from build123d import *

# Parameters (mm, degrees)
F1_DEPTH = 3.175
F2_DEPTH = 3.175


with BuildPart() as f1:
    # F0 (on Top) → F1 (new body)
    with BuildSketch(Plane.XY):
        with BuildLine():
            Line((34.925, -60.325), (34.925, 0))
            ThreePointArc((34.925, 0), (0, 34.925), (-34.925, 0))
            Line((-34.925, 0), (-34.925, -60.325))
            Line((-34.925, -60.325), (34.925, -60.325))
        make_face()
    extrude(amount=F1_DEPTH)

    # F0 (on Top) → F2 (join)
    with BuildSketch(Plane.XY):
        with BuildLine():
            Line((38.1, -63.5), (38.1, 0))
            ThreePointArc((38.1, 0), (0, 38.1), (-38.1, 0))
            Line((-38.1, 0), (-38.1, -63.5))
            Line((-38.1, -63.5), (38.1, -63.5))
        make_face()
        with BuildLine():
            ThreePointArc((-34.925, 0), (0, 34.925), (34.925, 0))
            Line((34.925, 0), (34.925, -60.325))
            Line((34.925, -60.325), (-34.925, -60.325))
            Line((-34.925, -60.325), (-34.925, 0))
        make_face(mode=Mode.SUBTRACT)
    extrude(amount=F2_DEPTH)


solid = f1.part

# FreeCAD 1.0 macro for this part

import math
import FreeCAD as App
import Part
import Sketcher

V = App.Vector
Q = App.Units.Quantity

doc = App.newDocument("Part")
params = doc.addObject("Spreadsheet::Sheet", "Params")
for row, (alias, value) in enumerate([
    ("sketch1_radius", "1.375 in"),
    ("sketch1_height", "2.375 in"),
    ("pad1_length", "0.125 in"),
    ("sketch2_radius", "1.5 in"),
    ("sketch2_height", "2.5 in"),
    ("sketch2_radius2", "1.375 in"),
    ("sketch2_height2", "2.375 in"),
    ("pad2_length", "0.125 in"),
], start=1):
    params.set(f"A{row}", alias)
    params.set(f"B{row}", "=" + value)
    params.setAlias(f"B{row}", alias)

body = doc.addObject("PartDesign::Body", "Body")

sketch1 = body.newObject("Sketcher::SketchObject", "Sketch")
sketch1.AttachmentSupport = (doc.getObject("XY_Plane"), [""])
sketch1.MapMode = "FlatFace"
sketch1.addGeometry([
    Part.LineSegment(V(34.925, -60.325, 0), V(34.925, 0, 0)),
    Part.ArcOfCircle(Part.Circle(V(0, 0, 0), V(0, 0, 1), 34.925), math.radians(0), math.radians(180)),
    Part.LineSegment(V(-34.925, 0, 0), V(-34.925, -60.325, 0)),
    Part.LineSegment(V(-34.925, -60.325, 0), V(34.925, -60.325, 0)),
], False)
sketch1.addConstraint([
    Sketcher.Constraint("Tangent", 0, 2, 1, 1),
    Sketcher.Constraint("Tangent", 1, 2, 2, 1),
    Sketcher.Constraint("Coincident", 2, 2, 3, 1),
    Sketcher.Constraint("Coincident", 3, 2, 0, 1),
    Sketcher.Constraint("Vertical", 0),
    Sketcher.Constraint("Vertical", 2),
    Sketcher.Constraint("Horizontal", 3),
    Sketcher.Constraint("Coincident", 1, 3, -1, 1),
    Sketcher.Constraint("Radius", 1, Q("1.375 in")),
    Sketcher.Constraint("DistanceY", 0, 1, 0, 2, Q("2.375 in")),
])
sketch1.setExpression("Constraints[8]", "Params.sketch1_radius")
sketch1.setExpression("Constraints[9]", "Params.sketch1_height")
pad1 = body.newObject("PartDesign::Pad", "Pad")
pad1.Profile = sketch1
pad1.setExpression("Length", "Params.pad1_length")

sketch2 = body.newObject("Sketcher::SketchObject", "Sketch001")
sketch2.AttachmentSupport = (doc.getObject("XY_Plane"), [""])
sketch2.MapMode = "FlatFace"
sketch2.addGeometry([
    Part.LineSegment(V(38.1, -63.5, 0), V(38.1, 0, 0)),
    Part.ArcOfCircle(Part.Circle(V(0, 0, 0), V(0, 0, 1), 38.1), math.radians(0), math.radians(180)),
    Part.LineSegment(V(-38.1, 0, 0), V(-38.1, -63.5, 0)),
    Part.LineSegment(V(-38.1, -63.5, 0), V(38.1, -63.5, 0)),
    Part.LineSegment(V(-34.925, -60.325, 0), V(-34.925, 0, 0)),
    Part.ArcOfCircle(Part.Circle(V(0, 0, 0), V(0, 0, 1), 34.925), math.radians(0), math.radians(180)),
    Part.LineSegment(V(34.925, 0, 0), V(34.925, -60.325, 0)),
    Part.LineSegment(V(34.925, -60.325, 0), V(-34.925, -60.325, 0)),
], False)
sketch2.addConstraint([
    Sketcher.Constraint("Tangent", 0, 2, 1, 1),
    Sketcher.Constraint("Tangent", 1, 2, 2, 1),
    Sketcher.Constraint("Coincident", 2, 2, 3, 1),
    Sketcher.Constraint("Coincident", 3, 2, 0, 1),
    Sketcher.Constraint("Tangent", 4, 2, 5, 2),
    Sketcher.Constraint("Tangent", 5, 1, 6, 1),
    Sketcher.Constraint("Coincident", 6, 2, 7, 1),
    Sketcher.Constraint("Coincident", 7, 2, 4, 1),
    Sketcher.Constraint("Vertical", 0),
    Sketcher.Constraint("Vertical", 2),
    Sketcher.Constraint("Horizontal", 3),
    Sketcher.Constraint("Vertical", 4),
    Sketcher.Constraint("Vertical", 6),
    Sketcher.Constraint("Horizontal", 7),
    Sketcher.Constraint("Coincident", 1, 3, -1, 1),
    Sketcher.Constraint("Coincident", 5, 3, -1, 1),
    Sketcher.Constraint("Radius", 1, Q("1.5 in")),
    Sketcher.Constraint("DistanceY", 0, 1, 0, 2, Q("2.5 in")),
    Sketcher.Constraint("Radius", 5, Q("1.375 in")),
    Sketcher.Constraint("DistanceY", 4, 1, 4, 2, Q("2.375 in")),
])
sketch2.setExpression("Constraints[16]", "Params.sketch2_radius")
sketch2.setExpression("Constraints[17]", "Params.sketch2_height")
sketch2.setExpression("Constraints[18]", "Params.sketch2_radius2")
sketch2.setExpression("Constraints[19]", "Params.sketch2_height2")
pad2 = body.newObject("PartDesign::Pad", "Pad001")
pad2.Profile = sketch2
pad2.setExpression("Length", "Params.pad2_length")

doc.recompute()
